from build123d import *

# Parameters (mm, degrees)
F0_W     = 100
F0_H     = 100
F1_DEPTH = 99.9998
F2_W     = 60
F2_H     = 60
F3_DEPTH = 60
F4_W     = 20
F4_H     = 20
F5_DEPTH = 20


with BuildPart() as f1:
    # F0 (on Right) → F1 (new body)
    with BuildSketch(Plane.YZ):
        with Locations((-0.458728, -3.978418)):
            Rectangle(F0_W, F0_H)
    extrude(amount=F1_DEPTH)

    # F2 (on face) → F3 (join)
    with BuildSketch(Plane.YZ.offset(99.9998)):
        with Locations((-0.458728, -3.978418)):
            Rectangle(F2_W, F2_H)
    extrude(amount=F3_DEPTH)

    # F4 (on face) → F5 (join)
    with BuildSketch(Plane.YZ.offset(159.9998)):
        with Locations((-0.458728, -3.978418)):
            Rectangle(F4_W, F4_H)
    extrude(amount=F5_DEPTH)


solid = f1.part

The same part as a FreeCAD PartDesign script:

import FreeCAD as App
import Part
import Sketcher
Q = App.Units.Quantity


def add_polygon(sketch, points):
    """Adds a closed chain of lines whose ends are joined by coincident constraints."""
    first, n = sketch.GeometryCount, len(points)
    for a, b in zip(points, points[1:] + points[:1]):
        sketch.addGeometry(Part.LineSegment(App.Vector(*a, 0), App.Vector(*b, 0)), False)
    for i in range(n):
        sketch.addConstraint(Sketcher.Constraint("Coincident", first + i, 2, first + (i + 1) % n, 1))

doc = App.newDocument("Part")
params = doc.addObject("Spreadsheet::Sheet", "Params")
for row, (alias, value) in enumerate([
    ("sketch1_width", "100 mm"),
    ("pad1_length", "99.9998 mm"),
    ("sketch2_width", "60 mm"),
    ("pad2_length", "60 mm"),
    ("sketch3_width", "20 mm"),
    ("pad3_length", "20 mm"),
], start=1):
    params.set(f"A{row}", alias)
    params.set(f"B{row}", "=" + value)
    params.setAlias(f"B{row}", alias)

body = doc.addObject("PartDesign::Body", "Body")

# Sketch on YZ plane
sketch1 = body.newObject("Sketcher::SketchObject", "Sketch")
sketch1.AttachmentSupport = (doc.getObject("YZ_Plane"), [""])
sketch1.MapMode = "FlatFace"
add_polygon(sketch1, [(-50, 46), (-50, -54), (50, -54), (50, 46)])  # lines 0-3
sketch1.addConstraint([
    Sketcher.Constraint("Vertical", 0),
    Sketcher.Constraint("Horizontal", 1),
    Sketcher.Constraint("Vertical", 2),
    Sketcher.Constraint("Horizontal", 3),
    Sketcher.Constraint("Equal", 3, 0),
    Sketcher.Constraint("DistanceX", 1, 1, 1, 2, Q("100 mm")),
    Sketcher.Constraint("DistanceX", 0, 2, -1, 1, Q("50.458728 mm")),
    Sketcher.Constraint("DistanceY", 0, 2, -1, 1, Q("53.978418 mm")),
])
sketch1.setExpression("Constraints[9]", "Params.sketch1_width")
pad1 = body.newObject("PartDesign::Pad", "Pad")
pad1.Profile = sketch1
pad1.setExpression("Length", "Params.pad1_length")

# Sketch on YZ plane
sketch2 = body.newObject("Sketcher::SketchObject", "Sketch001")
sketch2.AttachmentSupport = (doc.getObject("YZ_Plane"), [""])
sketch2.MapMode = "FlatFace"
sketch2.AttachmentOffset = App.Placement(App.Vector(0, 0, 99.9998), App.Rotation())
add_polygon(sketch2, [(-30, 26), (-30, -34), (30, -34), (30, 26)])  # lines 0-3
sketch2.addConstraint([
    Sketcher.Constraint("Vertical", 0),
    Sketcher.Constraint("Horizontal", 1),
    Sketcher.Constraint("Vertical", 2),
    Sketcher.Constraint("Horizontal", 3),
    Sketcher.Constraint("Equal", 3, 0),
    Sketcher.Constraint("DistanceX", 1, 1, 1, 2, Q("60 mm")),
    Sketcher.Constraint("DistanceX", 0, 2, -1, 1, Q("30.458728 mm")),
    Sketcher.Constraint("DistanceY", -1, 1, 2, 2, Q("26.021582 mm")),
])
sketch2.setExpression("Constraints[9]", "Params.sketch2_width")
pad2 = body.newObject("PartDesign::Pad", "Pad001")
pad2.Profile = sketch2
pad2.setExpression("Length", "Params.pad2_length")

# Sketch on YZ plane
sketch3 = body.newObject("Sketcher::SketchObject", "Sketch002")
sketch3.AttachmentSupport = (doc.getObject("YZ_Plane"), [""])
sketch3.MapMode = "FlatFace"
sketch3.AttachmentOffset = App.Placement(App.Vector(0, 0, 159.9998), App.Rotation())
add_polygon(sketch3, [(-10, 6), (-10, -14), (10, -14), (10, 6)])  # lines 0-3
sketch3.addConstraint([
    Sketcher.Constraint("Vertical", 0),
    Sketcher.Constraint("Horizontal", 1),
    Sketcher.Constraint("Vertical", 2),
    Sketcher.Constraint("Horizontal", 3),
    Sketcher.Constraint("Equal", 3, 0),
    Sketcher.Constraint("DistanceX", 1, 1, 1, 2, Q("20 mm")),
    Sketcher.Constraint("DistanceX", 0, 2, -1, 1, Q("10.458728 mm")),
    Sketcher.Constraint("DistanceY", 0, 2, -1, 1, Q("13.978418 mm")),
])
sketch3.setExpression("Constraints[9]", "Params.sketch3_width")
pad3 = body.newObject("PartDesign::Pad", "Pad002")
pad3.Profile = sketch3
pad3.setExpression("Length", "Params.pad3_length")

doc.recompute()
